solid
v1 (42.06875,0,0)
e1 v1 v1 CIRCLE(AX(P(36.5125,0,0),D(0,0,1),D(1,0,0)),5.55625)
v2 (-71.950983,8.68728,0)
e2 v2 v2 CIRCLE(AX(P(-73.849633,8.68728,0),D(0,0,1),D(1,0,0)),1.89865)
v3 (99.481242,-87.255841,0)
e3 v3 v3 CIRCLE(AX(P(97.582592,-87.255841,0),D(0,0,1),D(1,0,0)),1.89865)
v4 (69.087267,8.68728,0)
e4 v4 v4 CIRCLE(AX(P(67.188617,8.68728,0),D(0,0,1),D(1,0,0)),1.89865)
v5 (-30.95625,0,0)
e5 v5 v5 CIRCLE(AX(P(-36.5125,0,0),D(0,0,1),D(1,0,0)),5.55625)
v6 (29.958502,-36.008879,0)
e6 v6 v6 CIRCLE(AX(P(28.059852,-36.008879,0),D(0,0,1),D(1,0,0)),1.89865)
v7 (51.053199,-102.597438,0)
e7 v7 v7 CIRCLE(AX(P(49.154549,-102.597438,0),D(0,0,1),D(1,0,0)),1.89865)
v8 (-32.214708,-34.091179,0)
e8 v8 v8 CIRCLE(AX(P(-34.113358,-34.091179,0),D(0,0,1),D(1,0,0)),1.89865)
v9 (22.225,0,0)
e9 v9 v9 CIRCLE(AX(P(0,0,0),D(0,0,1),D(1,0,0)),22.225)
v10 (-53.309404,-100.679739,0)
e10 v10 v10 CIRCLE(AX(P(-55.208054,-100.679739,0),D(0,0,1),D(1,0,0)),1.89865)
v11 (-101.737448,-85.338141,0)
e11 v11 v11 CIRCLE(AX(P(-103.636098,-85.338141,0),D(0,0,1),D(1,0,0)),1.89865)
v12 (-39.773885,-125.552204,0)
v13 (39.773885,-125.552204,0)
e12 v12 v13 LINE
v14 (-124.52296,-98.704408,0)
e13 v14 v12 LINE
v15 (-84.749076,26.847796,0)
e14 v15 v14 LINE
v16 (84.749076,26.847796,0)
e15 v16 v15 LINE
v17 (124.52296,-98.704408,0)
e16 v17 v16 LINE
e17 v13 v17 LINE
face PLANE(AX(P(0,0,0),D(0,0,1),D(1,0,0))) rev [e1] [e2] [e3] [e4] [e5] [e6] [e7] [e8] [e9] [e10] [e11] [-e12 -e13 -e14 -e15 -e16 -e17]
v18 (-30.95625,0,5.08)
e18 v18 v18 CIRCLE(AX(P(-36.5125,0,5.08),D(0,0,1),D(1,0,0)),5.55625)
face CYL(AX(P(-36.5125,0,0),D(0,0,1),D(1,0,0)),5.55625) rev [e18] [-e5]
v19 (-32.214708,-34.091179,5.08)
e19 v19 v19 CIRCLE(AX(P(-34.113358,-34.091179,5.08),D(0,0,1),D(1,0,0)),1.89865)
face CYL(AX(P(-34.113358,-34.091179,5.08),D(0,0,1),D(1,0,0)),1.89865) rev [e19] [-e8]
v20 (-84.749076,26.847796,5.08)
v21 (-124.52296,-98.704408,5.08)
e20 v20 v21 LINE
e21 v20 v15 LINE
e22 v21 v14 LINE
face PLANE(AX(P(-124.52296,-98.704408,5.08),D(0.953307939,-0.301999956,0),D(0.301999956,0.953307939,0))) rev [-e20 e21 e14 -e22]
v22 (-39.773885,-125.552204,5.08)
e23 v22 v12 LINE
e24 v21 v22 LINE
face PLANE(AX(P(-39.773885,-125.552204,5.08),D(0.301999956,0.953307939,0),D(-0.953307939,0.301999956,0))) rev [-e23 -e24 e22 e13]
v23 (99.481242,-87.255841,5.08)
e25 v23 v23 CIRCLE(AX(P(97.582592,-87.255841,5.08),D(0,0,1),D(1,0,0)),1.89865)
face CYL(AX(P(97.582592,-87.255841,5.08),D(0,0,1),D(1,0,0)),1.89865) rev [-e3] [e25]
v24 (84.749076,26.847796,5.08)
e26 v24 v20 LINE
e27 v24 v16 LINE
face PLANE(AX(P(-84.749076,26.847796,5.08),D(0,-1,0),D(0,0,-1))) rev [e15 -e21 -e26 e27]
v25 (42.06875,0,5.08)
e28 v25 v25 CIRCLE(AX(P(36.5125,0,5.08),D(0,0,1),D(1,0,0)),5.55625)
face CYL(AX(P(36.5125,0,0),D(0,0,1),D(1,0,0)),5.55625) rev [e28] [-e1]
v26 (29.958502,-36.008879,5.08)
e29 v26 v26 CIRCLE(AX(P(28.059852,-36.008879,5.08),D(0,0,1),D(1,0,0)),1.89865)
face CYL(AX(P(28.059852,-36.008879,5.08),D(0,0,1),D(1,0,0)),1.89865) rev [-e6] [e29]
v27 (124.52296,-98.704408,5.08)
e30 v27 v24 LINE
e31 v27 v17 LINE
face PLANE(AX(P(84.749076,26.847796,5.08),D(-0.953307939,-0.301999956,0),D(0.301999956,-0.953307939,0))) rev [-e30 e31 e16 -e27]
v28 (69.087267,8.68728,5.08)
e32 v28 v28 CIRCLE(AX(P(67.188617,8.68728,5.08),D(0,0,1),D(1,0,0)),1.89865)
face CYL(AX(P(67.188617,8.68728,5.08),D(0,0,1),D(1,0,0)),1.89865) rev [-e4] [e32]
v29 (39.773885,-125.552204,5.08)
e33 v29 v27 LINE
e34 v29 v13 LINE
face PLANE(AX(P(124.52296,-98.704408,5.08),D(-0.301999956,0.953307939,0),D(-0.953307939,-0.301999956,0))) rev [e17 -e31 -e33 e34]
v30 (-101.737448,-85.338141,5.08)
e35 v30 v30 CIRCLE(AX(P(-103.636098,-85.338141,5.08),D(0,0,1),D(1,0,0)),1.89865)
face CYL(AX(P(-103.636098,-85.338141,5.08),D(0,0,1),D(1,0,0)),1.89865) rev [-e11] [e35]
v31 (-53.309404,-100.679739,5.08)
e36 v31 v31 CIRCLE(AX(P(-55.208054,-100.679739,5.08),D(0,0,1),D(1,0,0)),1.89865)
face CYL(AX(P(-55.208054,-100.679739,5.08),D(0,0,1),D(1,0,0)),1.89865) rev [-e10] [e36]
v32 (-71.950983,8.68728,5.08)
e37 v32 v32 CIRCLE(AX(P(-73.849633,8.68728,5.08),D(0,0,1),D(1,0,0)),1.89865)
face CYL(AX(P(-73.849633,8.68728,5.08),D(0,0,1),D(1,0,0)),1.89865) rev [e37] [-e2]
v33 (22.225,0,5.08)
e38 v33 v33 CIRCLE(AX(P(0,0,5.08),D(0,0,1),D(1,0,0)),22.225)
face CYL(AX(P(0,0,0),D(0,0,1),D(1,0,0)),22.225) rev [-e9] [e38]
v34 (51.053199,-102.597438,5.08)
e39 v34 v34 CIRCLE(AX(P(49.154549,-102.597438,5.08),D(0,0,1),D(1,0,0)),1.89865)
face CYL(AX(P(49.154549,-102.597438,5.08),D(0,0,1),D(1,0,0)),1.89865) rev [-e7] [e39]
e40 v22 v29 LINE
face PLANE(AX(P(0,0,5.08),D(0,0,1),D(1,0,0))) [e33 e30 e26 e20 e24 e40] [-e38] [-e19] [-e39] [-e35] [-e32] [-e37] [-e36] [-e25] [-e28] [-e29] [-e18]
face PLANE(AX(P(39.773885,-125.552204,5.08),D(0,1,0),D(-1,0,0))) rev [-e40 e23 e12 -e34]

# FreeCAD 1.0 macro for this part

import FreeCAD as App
import Part
import Sketcher
Q = App.Units.Quantity

doc = App.newDocument("Part")
body = doc.addObject("PartDesign::Body", "Body")

# Sketch on XY plane
sketch1 = body.newObject("Sketcher::SketchObject", "Sketch")
sketch1.AttachmentSupport = (doc.getObject("XY_Plane"), [""])
sketch1.MapMode = "FlatFace"
sketch1.addGeometry(Part.LineSegment(App.Vector(85, 27, 0), App.Vector(-85, 27, 0)), False)
sketch1.addGeometry(Part.LineSegment(App.Vector(-85, 27, 0), App.Vector(-125, -99, 0)), False)
sketch1.addGeometry(Part.LineSegment(App.Vector(-125, -99, 0), App.Vector(-40, -126, 0)), False)
sketch1.addGeometry(Part.LineSegment(App.Vector(-40, -126, 0), App.Vector(40, -126, 0)), False)
sketch1.addGeometry(Part.LineSegment(App.Vector(40, -126, 0), App.Vector(125, -99, 0)), False)
sketch1.addGeometry(Part.LineSegment(App.Vector(125, -99, 0), App.Vector(85, 27, 0)), False)
sketch1.addConstraint(Sketcher.Constraint("Coincident", 0, 2, 1, 1))
sketch1.addConstraint(Sketcher.Constraint("Coincident", 1, 2, 2, 1))
sketch1.addConstraint(Sketcher.Constraint("Coincident", 2, 2, 3, 1))
sketch1.addConstraint(Sketcher.Constraint("Coincident", 3, 2, 4, 1))
sketch1.addConstraint(Sketcher.Constraint("Coincident", 4, 2, 5, 1))
sketch1.addConstraint(Sketcher.Constraint("Coincident", 5, 2, 0, 1))
sketch1.addConstraint(Sketcher.Constraint("Horizontal", 0))
sketch1.addConstraint(Sketcher.Constraint("Horizontal", 3))
sketch1.addConstraint(Sketcher.Constraint("Symmetric", 1, 2, 4, 2, -2))
sketch1.addConstraint(Sketcher.Constraint("Perpendicular", 1, 2))
sketch1.addConstraint(Sketcher.Constraint("Perpendicular", 4, 5))
sketch1.addConstraint(Sketcher.Constraint("Equal", 2, 4))
sketch1.addConstraint(Sketcher.Constraint("DistanceY", 2, 2, 0, 2, Q("6 in")))
sketch1.addConstraint(Sketcher.Constraint("Distance", 2, Q("3.5 in")))
sketch1.addConstraint(Sketcher.Constraint("DistanceY", -1, 1, 0, 2, Q("1.0569998 in")))
sketch1.addConstraint(Sketcher.Constraint("DistanceY", 1, 2, 0, 2, Q("4.9430002 in")))
sketch1.addConstraint(Sketcher.Constraint("DistanceX", 0, 2, 0, 1, 169.498152))
pad1 = body.newObject("PartDesign::Pad", "Pad")
pad1.Profile = sketch1
pad1.Length = Q("0.2 in")

# Sketch on XY plane
sketch2 = body.newObject("Sketcher::SketchObject", "Sketch001")
sketch2.AttachmentSupport = (doc.getObject("XY_Plane"), [""])
sketch2.MapMode = "FlatFace"
sketch2.AttachmentOffset = App.Placement(App.Vector(0, 0, 0.2 * 25.4), App.Rotation())
sketch2.addGeometry(Part.Circle(App.Vector(0, 0, 0), App.Vector(0, 0, 1), 22), False)
sketch2.addGeometry(Part.Circle(App.Vector(-37, 0, 0), App.Vector(0, 0, 1), 6), False)
sketch2.addGeometry(Part.Circle(App.Vector(37, 0, 0), App.Vector(0, 0, 1), 6), False)
sketch2.addConstraint(Sketcher.Constraint("Coincident", 0, 3, -1, 1))
sketch2.addConstraint(Sketcher.Constraint("Equal", 1, 2))
sketch2.addConstraint(Sketcher.Constraint("Symmetric", 1, 3, 2, 3, -1, 1))
sketch2.addConstraint(Sketcher.Constraint("PointOnObject", 1, 3, -1))
sketch2.addConstraint(Sketcher.Constraint("Diameter", 0, Q("1.75 in")))
sketch2.addConstraint(Sketcher.Constraint("Diameter", 1, Q("0.4375 in")))
sketch2.addConstraint(Sketcher.Constraint("DistanceX", 1, 3, -1, 1, Q("1.4375 in")))
pocket1 = body.newObject("PartDesign::Pocket", "Pocket")
pocket1.Profile = sketch2
pocket1.Type = "ThroughAll"

# Sketch on XY plane
sketch3 = body.newObject("Sketcher::SketchObject", "Sketch002")
sketch3.AttachmentSupport = (doc.getObject("XY_Plane"), [""])
sketch3.MapMode = "FlatFace"
sketch3.AttachmentOffset = App.Placement(App.Vector(0, 0, 0.2 * 25.4), App.Rotation())
sketch3.addGeometry(Part.Circle(App.Vector(-73.8, 8.7, 0), App.Vector(0, 0, 1), 1.9), False)
sketch3.addGeometry(Part.Circle(App.Vector(-103.6, -85.3, 0), App.Vector(0, 0, 1), 1.9), False)
sketch3.addGeometry(Part.Circle(App.Vector(-55.2, -100.7, 0), App.Vector(0, 0, 1), 1.9), False)
sketch3.addGeometry(Part.Circle(App.Vector(-34.1, -34.1, 0), App.Vector(0, 0, 1), 1.9), False)
sketch3.addGeometry(Part.Circle(App.Vector(49.2, -102.6, 0), App.Vector(0, 0, 1), 1.9), False)
sketch3.addGeometry(Part.Circle(App.Vector(97.6, -87.3, 0), App.Vector(0, 0, 1), 1.9), False)
sketch3.addGeometry(Part.Circle(App.Vector(28.1, -36, 0), App.Vector(0, 0, 1), 1.9), False)
sketch3.addGeometry(Part.Circle(App.Vector(67.2, 8.7, 0), App.Vector(0, 0, 1), 1.9), False)
sketch3.addConstraint(Sketcher.Constraint("Equal", 0, 1))
sketch3.addConstraint(Sketcher.Constraint("Equal", 1, 2))
sketch3.addConstraint(Sketcher.Constraint("Equal", 2, 3))
sketch3.addConstraint(Sketcher.Constraint("Equal", 3, 4))
sketch3.addConstraint(Sketcher.Constraint("Equal", 4, 5))
sketch3.addConstraint(Sketcher.Constraint("Equal", 5, 6))
sketch3.addConstraint(Sketcher.Constraint("Equal", 6, 7))
sketch3.addConstraint(Sketcher.Constraint("Horizontal", 0, 3, 7, 3))
sketch3.addConstraint(Sketcher.Constraint("Diameter", 0, Q("0.1495 in")))
sketch3.addConstraint(Sketcher.Constraint("DistanceY", 2, 3, 1, 3, Q("0.6039999 in")))
sketch3.addConstraint(Sketcher.Constraint("DistanceY", 4, 3, 5, 3, Q("0.6039999 in")))
sketch3.addConstraint(Sketcher.Constraint("DistanceX", 2, 3, 3, 3, Q("0.8304999 in")))
sketch3.addConstraint(Sketcher.Constraint("DistanceY", 4, 3, 2, 3, Q("0.0755 in")))
sketch3.addConstraint(Sketcher.Constraint("DistanceY", 6, 3, 3, 3, Q("0.0755 in")))
sketch3.addConstraint(Sketcher.Constraint("DistanceX", 6, 3, 4, 3, Q("0.8304999 in")))
sketch3.addConstraint(Sketcher.Constraint("DistanceY", -1, 1, 0, 3, 8.68728))
sketch3.addConstraint(Sketcher.Constraint("DistanceY", 1, 3, -1, 1, 85.338141))
sketch3.addConstraint(Sketcher.Constraint("DistanceY", 3, 3, -1, 1, 34.091179))
sketch3.addConstraint(Sketcher.Constraint("DistanceX", -1, 1, 4, 3, 49.154549))
sketch3.addConstraint(Sketcher.Constraint("DistanceX", 0, 3, 2, 3, 18.641579))
sketch3.addConstraint(Sketcher.Constraint("DistanceX", 1, 3, 3, 3, 69.52274))
sketch3.addConstraint(Sketcher.Constraint("DistanceX", 3, 3, 5, 3, 131.69595))
sketch3.addConstraint(Sketcher.Constraint("DistanceX", 3, 3, 6, 3, 62.17321))
sketch3.addConstraint(Sketcher.Constraint("DistanceX", 0, 3, 7, 3, 141.03825))
doc.recompute()
hole = body.newObject("PartDesign::Hole", "Hole")
hole.Profile = sketch3
hole.ThreadType = "None"
hole.Diameter = Q("0.1495 in")
hole.DepthType = "ThroughAll"

doc.recompute()
